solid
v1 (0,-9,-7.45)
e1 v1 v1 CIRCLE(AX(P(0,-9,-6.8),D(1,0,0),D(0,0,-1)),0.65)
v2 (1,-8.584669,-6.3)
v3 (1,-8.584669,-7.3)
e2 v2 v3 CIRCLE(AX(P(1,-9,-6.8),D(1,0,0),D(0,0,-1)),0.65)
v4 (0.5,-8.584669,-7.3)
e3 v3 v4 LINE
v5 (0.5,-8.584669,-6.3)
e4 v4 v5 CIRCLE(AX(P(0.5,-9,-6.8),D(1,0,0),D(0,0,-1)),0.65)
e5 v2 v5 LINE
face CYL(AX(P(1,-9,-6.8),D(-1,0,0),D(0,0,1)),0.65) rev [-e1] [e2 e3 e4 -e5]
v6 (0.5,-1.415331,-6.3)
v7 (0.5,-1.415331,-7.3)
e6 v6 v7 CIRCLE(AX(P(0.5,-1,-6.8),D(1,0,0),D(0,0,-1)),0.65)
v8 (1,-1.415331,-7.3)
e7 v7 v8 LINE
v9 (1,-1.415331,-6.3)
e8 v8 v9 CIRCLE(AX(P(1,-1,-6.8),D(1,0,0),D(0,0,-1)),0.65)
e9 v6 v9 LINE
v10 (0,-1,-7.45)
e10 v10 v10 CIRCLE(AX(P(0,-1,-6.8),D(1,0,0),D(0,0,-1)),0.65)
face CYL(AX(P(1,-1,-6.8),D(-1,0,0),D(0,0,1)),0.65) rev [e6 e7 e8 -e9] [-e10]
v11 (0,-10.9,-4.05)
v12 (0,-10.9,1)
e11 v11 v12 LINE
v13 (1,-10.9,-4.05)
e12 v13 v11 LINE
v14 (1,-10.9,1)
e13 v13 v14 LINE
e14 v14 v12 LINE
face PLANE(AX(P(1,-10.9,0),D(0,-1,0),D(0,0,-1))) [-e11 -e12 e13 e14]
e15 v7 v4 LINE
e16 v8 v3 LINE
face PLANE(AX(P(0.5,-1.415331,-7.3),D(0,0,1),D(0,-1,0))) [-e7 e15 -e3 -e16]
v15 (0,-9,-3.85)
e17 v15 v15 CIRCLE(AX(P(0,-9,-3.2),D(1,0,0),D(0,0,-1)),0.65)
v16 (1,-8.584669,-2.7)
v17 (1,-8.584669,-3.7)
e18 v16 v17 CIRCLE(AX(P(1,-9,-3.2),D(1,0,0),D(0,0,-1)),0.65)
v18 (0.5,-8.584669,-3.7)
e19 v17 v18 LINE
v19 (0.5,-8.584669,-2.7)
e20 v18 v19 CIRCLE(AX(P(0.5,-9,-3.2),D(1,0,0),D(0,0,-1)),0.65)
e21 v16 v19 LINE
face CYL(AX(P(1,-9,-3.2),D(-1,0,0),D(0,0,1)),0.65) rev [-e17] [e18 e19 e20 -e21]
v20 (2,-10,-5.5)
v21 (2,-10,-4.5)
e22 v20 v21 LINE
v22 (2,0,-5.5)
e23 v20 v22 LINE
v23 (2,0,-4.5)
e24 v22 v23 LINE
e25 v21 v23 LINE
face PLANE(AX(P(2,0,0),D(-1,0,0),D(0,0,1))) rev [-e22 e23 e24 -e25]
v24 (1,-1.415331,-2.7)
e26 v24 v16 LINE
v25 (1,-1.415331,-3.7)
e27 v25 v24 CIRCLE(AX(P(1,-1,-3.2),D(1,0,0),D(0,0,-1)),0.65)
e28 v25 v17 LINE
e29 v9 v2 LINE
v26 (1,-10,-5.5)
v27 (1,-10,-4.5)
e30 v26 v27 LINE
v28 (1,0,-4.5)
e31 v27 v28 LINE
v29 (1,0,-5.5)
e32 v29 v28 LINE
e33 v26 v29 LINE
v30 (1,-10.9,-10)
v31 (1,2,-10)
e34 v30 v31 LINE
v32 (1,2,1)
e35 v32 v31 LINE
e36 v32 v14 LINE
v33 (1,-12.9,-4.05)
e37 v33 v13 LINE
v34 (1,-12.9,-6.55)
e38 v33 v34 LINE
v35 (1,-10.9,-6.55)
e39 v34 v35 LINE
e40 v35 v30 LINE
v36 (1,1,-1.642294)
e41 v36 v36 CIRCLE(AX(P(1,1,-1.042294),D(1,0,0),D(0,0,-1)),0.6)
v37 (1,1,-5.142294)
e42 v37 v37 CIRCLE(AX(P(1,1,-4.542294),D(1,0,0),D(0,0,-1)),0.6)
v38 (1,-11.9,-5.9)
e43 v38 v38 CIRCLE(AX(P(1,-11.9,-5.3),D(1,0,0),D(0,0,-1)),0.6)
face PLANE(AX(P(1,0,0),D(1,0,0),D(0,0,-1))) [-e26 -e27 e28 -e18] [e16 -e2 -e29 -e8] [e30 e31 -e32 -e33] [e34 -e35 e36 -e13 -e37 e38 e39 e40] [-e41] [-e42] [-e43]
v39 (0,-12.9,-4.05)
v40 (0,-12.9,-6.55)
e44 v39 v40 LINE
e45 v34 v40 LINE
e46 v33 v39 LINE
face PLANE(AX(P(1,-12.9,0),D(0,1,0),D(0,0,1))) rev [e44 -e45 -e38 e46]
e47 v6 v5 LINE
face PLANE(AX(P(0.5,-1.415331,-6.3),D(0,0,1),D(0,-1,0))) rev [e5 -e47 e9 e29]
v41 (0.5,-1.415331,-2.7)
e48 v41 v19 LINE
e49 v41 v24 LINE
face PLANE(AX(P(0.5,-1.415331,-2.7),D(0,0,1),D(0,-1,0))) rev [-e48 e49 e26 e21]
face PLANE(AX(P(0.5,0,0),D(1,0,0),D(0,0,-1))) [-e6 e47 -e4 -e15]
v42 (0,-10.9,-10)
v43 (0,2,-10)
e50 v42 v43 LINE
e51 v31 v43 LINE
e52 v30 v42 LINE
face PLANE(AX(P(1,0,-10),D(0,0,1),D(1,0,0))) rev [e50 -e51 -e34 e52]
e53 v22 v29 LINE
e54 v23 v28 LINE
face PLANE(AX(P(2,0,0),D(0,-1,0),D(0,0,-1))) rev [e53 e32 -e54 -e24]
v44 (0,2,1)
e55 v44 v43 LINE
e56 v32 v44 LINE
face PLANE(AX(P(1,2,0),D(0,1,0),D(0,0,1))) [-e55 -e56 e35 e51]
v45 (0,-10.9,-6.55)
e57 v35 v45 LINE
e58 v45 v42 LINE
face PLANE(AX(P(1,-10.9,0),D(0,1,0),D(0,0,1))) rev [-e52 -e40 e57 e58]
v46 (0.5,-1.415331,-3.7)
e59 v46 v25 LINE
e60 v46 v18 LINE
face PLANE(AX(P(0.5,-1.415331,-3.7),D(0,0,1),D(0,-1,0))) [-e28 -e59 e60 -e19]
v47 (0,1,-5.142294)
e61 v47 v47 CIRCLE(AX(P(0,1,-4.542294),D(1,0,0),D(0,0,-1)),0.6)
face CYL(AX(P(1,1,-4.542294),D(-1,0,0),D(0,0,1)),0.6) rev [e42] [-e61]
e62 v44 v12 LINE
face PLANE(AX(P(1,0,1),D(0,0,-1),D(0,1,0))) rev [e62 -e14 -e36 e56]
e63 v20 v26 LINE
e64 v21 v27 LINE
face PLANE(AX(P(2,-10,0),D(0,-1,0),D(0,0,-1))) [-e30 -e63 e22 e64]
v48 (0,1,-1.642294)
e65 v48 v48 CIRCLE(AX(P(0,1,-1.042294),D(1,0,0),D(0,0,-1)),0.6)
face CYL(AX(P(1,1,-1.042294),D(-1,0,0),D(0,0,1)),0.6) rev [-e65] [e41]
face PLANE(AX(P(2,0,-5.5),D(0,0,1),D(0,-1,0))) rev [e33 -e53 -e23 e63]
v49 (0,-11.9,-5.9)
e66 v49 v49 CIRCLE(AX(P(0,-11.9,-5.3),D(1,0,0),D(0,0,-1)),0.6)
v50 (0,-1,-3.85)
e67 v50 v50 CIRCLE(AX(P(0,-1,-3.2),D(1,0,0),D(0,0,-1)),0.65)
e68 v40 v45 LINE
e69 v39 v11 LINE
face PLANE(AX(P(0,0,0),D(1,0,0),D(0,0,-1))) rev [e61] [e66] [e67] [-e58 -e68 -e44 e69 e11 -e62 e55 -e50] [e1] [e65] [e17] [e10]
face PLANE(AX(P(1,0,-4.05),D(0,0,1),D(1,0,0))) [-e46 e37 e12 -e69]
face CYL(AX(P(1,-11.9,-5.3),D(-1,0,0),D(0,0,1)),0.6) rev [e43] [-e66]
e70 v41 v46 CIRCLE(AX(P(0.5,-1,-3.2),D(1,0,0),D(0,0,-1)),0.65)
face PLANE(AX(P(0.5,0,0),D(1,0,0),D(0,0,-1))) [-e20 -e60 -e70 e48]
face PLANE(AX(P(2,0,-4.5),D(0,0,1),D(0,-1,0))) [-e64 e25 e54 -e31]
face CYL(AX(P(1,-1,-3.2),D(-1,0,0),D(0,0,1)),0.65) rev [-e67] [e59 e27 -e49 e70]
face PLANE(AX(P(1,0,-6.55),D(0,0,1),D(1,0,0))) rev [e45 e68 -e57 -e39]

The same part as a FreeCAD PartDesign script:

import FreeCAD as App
import Part
import Sketcher
from FreeCAD import Vector
Q = App.Units.Quantity


def add_polygon(sketch, points):
    """Adds a closed chain of lines whose ends are joined by coincident constraints."""
    first, n = sketch.GeometryCount, len(points)
    for a, b in zip(points, points[1:] + points[:1]):
        sketch.addGeometry(Part.LineSegment(App.Vector(*a, 0), App.Vector(*b, 0)), False)
    for i in range(n):
        sketch.addConstraint(Sketcher.Constraint("Coincident", first + i, 2, first + (i + 1) % n, 1))

doc = App.newDocument("Part")
body = doc.addObject("PartDesign::Body", "Body")

# Sketch on YZ plane
sketch1 = body.newObject("Sketcher::SketchObject", "Sketch")
sketch1.AttachmentSupport = (doc.getObject("YZ_Plane"), [""])
sketch1.MapMode = "FlatFace"
add_polygon(sketch1, [(2, -10), (2, 1), (-10.9, 1), (-10.9, -4), (-12.9, -4), (-12.9, -6.5), (-10.9, -6.5), (-10.9, -10)])  # lines 0-7
sketch1.addGeometry(Part.Circle(Vector(1, -1, 0), Vector(0, 0, 1), 0.6), False)  # 8
sketch1.addGeometry(Part.Circle(Vector(1, -4.5, 0), Vector(0, 0, 1), 0.6), False)  # 9
sketch1.addGeometry(Part.Circle(Vector(-9, -3.2, 0), Vector(0, 0, 1), 0.7), False)  # 10
sketch1.addGeometry(Part.Circle(Vector(-1, -3.2, 0), Vector(0, 0, 1), 0.7), False)  # 11
sketch1.addGeometry(Part.Circle(Vector(-9, -6.8, 0), Vector(0, 0, 1), 0.7), False)  # 12
sketch1.addGeometry(Part.Circle(Vector(-1, -6.8, 0), Vector(0, 0, 1), 0.7), False)  # 13
sketch1.addGeometry(Part.Circle(Vector(-11.9, -5.3, 0), Vector(0, 0, 1), 0.6), False)  # 14
sketch1.addConstraint(Sketcher.Constraint("Vertical", 0))
sketch1.addConstraint(Sketcher.Constraint("Horizontal", 1))
sketch1.addConstraint(Sketcher.Constraint("Vertical", 2))
sketch1.addConstraint(Sketcher.Constraint("Horizontal", 3))
sketch1.addConstraint(Sketcher.Constraint("Vertical", 4))
sketch1.addConstraint(Sketcher.Constraint("Horizontal", 5))
sketch1.addConstraint(Sketcher.Constraint("Vertical", 6))
sketch1.addConstraint(Sketcher.Constraint("Horizontal", 7))
sketch1.addConstraint(Sketcher.Constraint("Equal", 8, 9))
sketch1.addConstraint(Sketcher.Constraint("Equal", 10, 11))
sketch1.addConstraint(Sketcher.Constraint("Equal", 11, 12))
sketch1.addConstraint(Sketcher.Constraint("Equal", 12, 13))
sketch1.addConstraint(Sketcher.Constraint("Equal", 9, 14))
sketch1.addConstraint(Sketcher.Constraint("Horizontal", 10, 3, 11, 3))
sketch1.addConstraint(Sketcher.Constraint("Horizontal", 12, 3, 13, 3))
sketch1.addConstraint(Sketcher.Constraint("Vertical", 8, 3, 9, 3))
sketch1.addConstraint(Sketcher.Constraint("Vertical", 10, 3, 12, 3))
sketch1.addConstraint(Sketcher.Constraint("Vertical", 11, 3, 13, 3))
sketch1.addConstraint(Sketcher.Constraint("Vertical", 2, 2, 5, 2))
sketch1.addConstraint(Sketcher.Constraint("Diameter", 8, Q("1.2 mm")))
sketch1.addConstraint(Sketcher.Constraint("Diameter", 10, Q("1.3 mm")))
sketch1.addConstraint(Sketcher.Constraint("DistanceX", 3, 2, 3, 1, Q("2 mm")))
sketch1.addConstraint(Sketcher.Constraint("DistanceY", 0, 1, 0, 2, Q("11 mm")))
sketch1.addConstraint(Sketcher.Constraint("DistanceX", 1, 2, 1, 1, Q("12.9 mm")))
sketch1.addConstraint(Sketcher.Constraint("DistanceY", 4, 2, 4, 1, Q("2.5 mm")))
sketch1.addConstraint(Sketcher.Constraint("DistanceX", -1, 1, 8, 3, Q("1 mm")))
sketch1.addConstraint(Sketcher.Constraint("DistanceX", 10, 3, -1, 1, Q("9 mm")))
sketch1.addConstraint(Sketcher.Constraint("DistanceX", 11, 3, -1, 1, Q("1 mm")))
sketch1.addConstraint(Sketcher.Constraint("DistanceX", -1, 1, 0, 2, Q("2 mm")))
sketch1.addConstraint(Sketcher.Constraint("DistanceY", -1, 1, 0, 2, Q("1 mm")))
sketch1.addConstraint(Sketcher.Constraint("DistanceX", 14, 3, 1, 2, Q("1 mm")))
sketch1.addConstraint(Sketcher.Constraint("DistanceY", 2, 2, 2, 1, Q("5.05 mm")))
sketch1.addConstraint(Sketcher.Constraint("DistanceY", 10, 3, -1, 1, Q("3.2 mm")))
sketch1.addConstraint(Sketcher.Constraint("DistanceY", 12, 3, -1, 1, Q("6.8 mm")))
sketch1.addConstraint(Sketcher.Constraint("DistanceY", 14, 3, -1, 1, Q("5.3 mm")))
sketch1.addConstraint(Sketcher.Constraint("DistanceY", 9, 3, 8, 3, Q("3.5 mm")))
sketch1.addConstraint(Sketcher.Constraint("DistanceY", 8, 3, -1, 1, Q("1.042294 mm")))
pad1 = body.newObject("PartDesign::Pad", "Pad")
pad1.Profile = sketch1
pad1.Length = 1

# Sketch on YZ plane
sketch2 = body.newObject("Sketcher::SketchObject", "Sketch001")
sketch2.AttachmentSupport = (doc.getObject("YZ_Plane"), [""])
sketch2.MapMode = "FlatFace"
sketch2.AttachmentOffset = App.Placement(Vector(0, 0, 1), App.Rotation())
add_polygon(sketch2, [(0, -4.5), (-10, -4.5), (-10, -5.5), (0, -5.5)])  # lines 0-3
sketch2.addConstraint(Sketcher.Constraint("Horizontal", 0))
sketch2.addConstraint(Sketcher.Constraint("Vertical", 1))
sketch2.addConstraint(Sketcher.Constraint("Horizontal", 2))
sketch2.addConstraint(Sketcher.Constraint("Vertical", 3))
sketch2.addConstraint(Sketcher.Constraint("PointOnObject", 2, 2, -2))
sketch2.addConstraint(Sketcher.Constraint("DistanceX", 0, 2, 0, 1, Q("10 mm")))
sketch2.addConstraint(Sketcher.Constraint("DistanceY", 1, 2, 1, 1, Q("1 mm")))
sketch2.addConstraint(Sketcher.Constraint("DistanceY", 0, 2, -1, 1, Q("4.5 mm")))
pad2 = body.newObject("PartDesign::Pad", "Pad001")
pad2.Profile = sketch2
pad2.Length = 1

# Sketch on YZ plane
sketch3 = body.newObject("Sketcher::SketchObject", "Sketch002")
sketch3.AttachmentSupport = (doc.getObject("YZ_Plane"), [""])
sketch3.MapMode = "FlatFace"
sketch3.AttachmentOffset = App.Placement(Vector(0, 0, 1), App.Rotation())
add_polygon(sketch3, [(-1.4, -6.3), (-9.4, -6.3), (-9.4, -7.3), (-1.4, -7.3)])  # lines 0-3
add_polygon(sketch3, [(-1.4, -2.7), (-9.4, -2.7), (-9.4, -3.7), (-1.4, -3.7)])  # lines 4-7
sketch3.addConstraint(Sketcher.Constraint("Horizontal", 0))
sketch3.addConstraint(Sketcher.Constraint("Vertical", 1))
sketch3.addConstraint(Sketcher.Constraint("Horizontal", 2))
sketch3.addConstraint(Sketcher.Constraint("Vertical", 3))
sketch3.addConstraint(Sketcher.Constraint("Horizontal", 4))
sketch3.addConstraint(Sketcher.Constraint("Vertical", 5))
sketch3.addConstraint(Sketcher.Constraint("Horizontal", 6))
sketch3.addConstraint(Sketcher.Constraint("Vertical", 7))
sketch3.addConstraint(Sketcher.Constraint("Vertical", 1, 2, 4, 2))
sketch3.addConstraint(Sketcher.Constraint("Vertical", 3, 2, 6, 2))
sketch3.addConstraint(Sketcher.Constraint("Equal", 3, 5))
sketch3.addConstraint(Sketcher.Constraint("DistanceX", 0, 2, 0, 1, Q("8 mm")))
sketch3.addConstraint(Sketcher.Constraint("DistanceY", 1, 2, 1, 1, Q("1 mm")))
sketch3.addConstraint(Sketcher.Constraint("DistanceY", 0, 2, -1, 1, Q("6.3 mm")))
sketch3.addConstraint(Sketcher.Constraint("DistanceY", 4, 2, -1, 1, Q("2.7 mm")))
sketch3.addConstraint(Sketcher.Constraint("DistanceX", 0, 2, -1, 1, Q("9.415331 mm")))
pocket1 = body.newObject("PartDesign::Pocket", "Pocket")
pocket1.Profile = sketch3
pocket1.Length = 0.5

doc.recompute()
